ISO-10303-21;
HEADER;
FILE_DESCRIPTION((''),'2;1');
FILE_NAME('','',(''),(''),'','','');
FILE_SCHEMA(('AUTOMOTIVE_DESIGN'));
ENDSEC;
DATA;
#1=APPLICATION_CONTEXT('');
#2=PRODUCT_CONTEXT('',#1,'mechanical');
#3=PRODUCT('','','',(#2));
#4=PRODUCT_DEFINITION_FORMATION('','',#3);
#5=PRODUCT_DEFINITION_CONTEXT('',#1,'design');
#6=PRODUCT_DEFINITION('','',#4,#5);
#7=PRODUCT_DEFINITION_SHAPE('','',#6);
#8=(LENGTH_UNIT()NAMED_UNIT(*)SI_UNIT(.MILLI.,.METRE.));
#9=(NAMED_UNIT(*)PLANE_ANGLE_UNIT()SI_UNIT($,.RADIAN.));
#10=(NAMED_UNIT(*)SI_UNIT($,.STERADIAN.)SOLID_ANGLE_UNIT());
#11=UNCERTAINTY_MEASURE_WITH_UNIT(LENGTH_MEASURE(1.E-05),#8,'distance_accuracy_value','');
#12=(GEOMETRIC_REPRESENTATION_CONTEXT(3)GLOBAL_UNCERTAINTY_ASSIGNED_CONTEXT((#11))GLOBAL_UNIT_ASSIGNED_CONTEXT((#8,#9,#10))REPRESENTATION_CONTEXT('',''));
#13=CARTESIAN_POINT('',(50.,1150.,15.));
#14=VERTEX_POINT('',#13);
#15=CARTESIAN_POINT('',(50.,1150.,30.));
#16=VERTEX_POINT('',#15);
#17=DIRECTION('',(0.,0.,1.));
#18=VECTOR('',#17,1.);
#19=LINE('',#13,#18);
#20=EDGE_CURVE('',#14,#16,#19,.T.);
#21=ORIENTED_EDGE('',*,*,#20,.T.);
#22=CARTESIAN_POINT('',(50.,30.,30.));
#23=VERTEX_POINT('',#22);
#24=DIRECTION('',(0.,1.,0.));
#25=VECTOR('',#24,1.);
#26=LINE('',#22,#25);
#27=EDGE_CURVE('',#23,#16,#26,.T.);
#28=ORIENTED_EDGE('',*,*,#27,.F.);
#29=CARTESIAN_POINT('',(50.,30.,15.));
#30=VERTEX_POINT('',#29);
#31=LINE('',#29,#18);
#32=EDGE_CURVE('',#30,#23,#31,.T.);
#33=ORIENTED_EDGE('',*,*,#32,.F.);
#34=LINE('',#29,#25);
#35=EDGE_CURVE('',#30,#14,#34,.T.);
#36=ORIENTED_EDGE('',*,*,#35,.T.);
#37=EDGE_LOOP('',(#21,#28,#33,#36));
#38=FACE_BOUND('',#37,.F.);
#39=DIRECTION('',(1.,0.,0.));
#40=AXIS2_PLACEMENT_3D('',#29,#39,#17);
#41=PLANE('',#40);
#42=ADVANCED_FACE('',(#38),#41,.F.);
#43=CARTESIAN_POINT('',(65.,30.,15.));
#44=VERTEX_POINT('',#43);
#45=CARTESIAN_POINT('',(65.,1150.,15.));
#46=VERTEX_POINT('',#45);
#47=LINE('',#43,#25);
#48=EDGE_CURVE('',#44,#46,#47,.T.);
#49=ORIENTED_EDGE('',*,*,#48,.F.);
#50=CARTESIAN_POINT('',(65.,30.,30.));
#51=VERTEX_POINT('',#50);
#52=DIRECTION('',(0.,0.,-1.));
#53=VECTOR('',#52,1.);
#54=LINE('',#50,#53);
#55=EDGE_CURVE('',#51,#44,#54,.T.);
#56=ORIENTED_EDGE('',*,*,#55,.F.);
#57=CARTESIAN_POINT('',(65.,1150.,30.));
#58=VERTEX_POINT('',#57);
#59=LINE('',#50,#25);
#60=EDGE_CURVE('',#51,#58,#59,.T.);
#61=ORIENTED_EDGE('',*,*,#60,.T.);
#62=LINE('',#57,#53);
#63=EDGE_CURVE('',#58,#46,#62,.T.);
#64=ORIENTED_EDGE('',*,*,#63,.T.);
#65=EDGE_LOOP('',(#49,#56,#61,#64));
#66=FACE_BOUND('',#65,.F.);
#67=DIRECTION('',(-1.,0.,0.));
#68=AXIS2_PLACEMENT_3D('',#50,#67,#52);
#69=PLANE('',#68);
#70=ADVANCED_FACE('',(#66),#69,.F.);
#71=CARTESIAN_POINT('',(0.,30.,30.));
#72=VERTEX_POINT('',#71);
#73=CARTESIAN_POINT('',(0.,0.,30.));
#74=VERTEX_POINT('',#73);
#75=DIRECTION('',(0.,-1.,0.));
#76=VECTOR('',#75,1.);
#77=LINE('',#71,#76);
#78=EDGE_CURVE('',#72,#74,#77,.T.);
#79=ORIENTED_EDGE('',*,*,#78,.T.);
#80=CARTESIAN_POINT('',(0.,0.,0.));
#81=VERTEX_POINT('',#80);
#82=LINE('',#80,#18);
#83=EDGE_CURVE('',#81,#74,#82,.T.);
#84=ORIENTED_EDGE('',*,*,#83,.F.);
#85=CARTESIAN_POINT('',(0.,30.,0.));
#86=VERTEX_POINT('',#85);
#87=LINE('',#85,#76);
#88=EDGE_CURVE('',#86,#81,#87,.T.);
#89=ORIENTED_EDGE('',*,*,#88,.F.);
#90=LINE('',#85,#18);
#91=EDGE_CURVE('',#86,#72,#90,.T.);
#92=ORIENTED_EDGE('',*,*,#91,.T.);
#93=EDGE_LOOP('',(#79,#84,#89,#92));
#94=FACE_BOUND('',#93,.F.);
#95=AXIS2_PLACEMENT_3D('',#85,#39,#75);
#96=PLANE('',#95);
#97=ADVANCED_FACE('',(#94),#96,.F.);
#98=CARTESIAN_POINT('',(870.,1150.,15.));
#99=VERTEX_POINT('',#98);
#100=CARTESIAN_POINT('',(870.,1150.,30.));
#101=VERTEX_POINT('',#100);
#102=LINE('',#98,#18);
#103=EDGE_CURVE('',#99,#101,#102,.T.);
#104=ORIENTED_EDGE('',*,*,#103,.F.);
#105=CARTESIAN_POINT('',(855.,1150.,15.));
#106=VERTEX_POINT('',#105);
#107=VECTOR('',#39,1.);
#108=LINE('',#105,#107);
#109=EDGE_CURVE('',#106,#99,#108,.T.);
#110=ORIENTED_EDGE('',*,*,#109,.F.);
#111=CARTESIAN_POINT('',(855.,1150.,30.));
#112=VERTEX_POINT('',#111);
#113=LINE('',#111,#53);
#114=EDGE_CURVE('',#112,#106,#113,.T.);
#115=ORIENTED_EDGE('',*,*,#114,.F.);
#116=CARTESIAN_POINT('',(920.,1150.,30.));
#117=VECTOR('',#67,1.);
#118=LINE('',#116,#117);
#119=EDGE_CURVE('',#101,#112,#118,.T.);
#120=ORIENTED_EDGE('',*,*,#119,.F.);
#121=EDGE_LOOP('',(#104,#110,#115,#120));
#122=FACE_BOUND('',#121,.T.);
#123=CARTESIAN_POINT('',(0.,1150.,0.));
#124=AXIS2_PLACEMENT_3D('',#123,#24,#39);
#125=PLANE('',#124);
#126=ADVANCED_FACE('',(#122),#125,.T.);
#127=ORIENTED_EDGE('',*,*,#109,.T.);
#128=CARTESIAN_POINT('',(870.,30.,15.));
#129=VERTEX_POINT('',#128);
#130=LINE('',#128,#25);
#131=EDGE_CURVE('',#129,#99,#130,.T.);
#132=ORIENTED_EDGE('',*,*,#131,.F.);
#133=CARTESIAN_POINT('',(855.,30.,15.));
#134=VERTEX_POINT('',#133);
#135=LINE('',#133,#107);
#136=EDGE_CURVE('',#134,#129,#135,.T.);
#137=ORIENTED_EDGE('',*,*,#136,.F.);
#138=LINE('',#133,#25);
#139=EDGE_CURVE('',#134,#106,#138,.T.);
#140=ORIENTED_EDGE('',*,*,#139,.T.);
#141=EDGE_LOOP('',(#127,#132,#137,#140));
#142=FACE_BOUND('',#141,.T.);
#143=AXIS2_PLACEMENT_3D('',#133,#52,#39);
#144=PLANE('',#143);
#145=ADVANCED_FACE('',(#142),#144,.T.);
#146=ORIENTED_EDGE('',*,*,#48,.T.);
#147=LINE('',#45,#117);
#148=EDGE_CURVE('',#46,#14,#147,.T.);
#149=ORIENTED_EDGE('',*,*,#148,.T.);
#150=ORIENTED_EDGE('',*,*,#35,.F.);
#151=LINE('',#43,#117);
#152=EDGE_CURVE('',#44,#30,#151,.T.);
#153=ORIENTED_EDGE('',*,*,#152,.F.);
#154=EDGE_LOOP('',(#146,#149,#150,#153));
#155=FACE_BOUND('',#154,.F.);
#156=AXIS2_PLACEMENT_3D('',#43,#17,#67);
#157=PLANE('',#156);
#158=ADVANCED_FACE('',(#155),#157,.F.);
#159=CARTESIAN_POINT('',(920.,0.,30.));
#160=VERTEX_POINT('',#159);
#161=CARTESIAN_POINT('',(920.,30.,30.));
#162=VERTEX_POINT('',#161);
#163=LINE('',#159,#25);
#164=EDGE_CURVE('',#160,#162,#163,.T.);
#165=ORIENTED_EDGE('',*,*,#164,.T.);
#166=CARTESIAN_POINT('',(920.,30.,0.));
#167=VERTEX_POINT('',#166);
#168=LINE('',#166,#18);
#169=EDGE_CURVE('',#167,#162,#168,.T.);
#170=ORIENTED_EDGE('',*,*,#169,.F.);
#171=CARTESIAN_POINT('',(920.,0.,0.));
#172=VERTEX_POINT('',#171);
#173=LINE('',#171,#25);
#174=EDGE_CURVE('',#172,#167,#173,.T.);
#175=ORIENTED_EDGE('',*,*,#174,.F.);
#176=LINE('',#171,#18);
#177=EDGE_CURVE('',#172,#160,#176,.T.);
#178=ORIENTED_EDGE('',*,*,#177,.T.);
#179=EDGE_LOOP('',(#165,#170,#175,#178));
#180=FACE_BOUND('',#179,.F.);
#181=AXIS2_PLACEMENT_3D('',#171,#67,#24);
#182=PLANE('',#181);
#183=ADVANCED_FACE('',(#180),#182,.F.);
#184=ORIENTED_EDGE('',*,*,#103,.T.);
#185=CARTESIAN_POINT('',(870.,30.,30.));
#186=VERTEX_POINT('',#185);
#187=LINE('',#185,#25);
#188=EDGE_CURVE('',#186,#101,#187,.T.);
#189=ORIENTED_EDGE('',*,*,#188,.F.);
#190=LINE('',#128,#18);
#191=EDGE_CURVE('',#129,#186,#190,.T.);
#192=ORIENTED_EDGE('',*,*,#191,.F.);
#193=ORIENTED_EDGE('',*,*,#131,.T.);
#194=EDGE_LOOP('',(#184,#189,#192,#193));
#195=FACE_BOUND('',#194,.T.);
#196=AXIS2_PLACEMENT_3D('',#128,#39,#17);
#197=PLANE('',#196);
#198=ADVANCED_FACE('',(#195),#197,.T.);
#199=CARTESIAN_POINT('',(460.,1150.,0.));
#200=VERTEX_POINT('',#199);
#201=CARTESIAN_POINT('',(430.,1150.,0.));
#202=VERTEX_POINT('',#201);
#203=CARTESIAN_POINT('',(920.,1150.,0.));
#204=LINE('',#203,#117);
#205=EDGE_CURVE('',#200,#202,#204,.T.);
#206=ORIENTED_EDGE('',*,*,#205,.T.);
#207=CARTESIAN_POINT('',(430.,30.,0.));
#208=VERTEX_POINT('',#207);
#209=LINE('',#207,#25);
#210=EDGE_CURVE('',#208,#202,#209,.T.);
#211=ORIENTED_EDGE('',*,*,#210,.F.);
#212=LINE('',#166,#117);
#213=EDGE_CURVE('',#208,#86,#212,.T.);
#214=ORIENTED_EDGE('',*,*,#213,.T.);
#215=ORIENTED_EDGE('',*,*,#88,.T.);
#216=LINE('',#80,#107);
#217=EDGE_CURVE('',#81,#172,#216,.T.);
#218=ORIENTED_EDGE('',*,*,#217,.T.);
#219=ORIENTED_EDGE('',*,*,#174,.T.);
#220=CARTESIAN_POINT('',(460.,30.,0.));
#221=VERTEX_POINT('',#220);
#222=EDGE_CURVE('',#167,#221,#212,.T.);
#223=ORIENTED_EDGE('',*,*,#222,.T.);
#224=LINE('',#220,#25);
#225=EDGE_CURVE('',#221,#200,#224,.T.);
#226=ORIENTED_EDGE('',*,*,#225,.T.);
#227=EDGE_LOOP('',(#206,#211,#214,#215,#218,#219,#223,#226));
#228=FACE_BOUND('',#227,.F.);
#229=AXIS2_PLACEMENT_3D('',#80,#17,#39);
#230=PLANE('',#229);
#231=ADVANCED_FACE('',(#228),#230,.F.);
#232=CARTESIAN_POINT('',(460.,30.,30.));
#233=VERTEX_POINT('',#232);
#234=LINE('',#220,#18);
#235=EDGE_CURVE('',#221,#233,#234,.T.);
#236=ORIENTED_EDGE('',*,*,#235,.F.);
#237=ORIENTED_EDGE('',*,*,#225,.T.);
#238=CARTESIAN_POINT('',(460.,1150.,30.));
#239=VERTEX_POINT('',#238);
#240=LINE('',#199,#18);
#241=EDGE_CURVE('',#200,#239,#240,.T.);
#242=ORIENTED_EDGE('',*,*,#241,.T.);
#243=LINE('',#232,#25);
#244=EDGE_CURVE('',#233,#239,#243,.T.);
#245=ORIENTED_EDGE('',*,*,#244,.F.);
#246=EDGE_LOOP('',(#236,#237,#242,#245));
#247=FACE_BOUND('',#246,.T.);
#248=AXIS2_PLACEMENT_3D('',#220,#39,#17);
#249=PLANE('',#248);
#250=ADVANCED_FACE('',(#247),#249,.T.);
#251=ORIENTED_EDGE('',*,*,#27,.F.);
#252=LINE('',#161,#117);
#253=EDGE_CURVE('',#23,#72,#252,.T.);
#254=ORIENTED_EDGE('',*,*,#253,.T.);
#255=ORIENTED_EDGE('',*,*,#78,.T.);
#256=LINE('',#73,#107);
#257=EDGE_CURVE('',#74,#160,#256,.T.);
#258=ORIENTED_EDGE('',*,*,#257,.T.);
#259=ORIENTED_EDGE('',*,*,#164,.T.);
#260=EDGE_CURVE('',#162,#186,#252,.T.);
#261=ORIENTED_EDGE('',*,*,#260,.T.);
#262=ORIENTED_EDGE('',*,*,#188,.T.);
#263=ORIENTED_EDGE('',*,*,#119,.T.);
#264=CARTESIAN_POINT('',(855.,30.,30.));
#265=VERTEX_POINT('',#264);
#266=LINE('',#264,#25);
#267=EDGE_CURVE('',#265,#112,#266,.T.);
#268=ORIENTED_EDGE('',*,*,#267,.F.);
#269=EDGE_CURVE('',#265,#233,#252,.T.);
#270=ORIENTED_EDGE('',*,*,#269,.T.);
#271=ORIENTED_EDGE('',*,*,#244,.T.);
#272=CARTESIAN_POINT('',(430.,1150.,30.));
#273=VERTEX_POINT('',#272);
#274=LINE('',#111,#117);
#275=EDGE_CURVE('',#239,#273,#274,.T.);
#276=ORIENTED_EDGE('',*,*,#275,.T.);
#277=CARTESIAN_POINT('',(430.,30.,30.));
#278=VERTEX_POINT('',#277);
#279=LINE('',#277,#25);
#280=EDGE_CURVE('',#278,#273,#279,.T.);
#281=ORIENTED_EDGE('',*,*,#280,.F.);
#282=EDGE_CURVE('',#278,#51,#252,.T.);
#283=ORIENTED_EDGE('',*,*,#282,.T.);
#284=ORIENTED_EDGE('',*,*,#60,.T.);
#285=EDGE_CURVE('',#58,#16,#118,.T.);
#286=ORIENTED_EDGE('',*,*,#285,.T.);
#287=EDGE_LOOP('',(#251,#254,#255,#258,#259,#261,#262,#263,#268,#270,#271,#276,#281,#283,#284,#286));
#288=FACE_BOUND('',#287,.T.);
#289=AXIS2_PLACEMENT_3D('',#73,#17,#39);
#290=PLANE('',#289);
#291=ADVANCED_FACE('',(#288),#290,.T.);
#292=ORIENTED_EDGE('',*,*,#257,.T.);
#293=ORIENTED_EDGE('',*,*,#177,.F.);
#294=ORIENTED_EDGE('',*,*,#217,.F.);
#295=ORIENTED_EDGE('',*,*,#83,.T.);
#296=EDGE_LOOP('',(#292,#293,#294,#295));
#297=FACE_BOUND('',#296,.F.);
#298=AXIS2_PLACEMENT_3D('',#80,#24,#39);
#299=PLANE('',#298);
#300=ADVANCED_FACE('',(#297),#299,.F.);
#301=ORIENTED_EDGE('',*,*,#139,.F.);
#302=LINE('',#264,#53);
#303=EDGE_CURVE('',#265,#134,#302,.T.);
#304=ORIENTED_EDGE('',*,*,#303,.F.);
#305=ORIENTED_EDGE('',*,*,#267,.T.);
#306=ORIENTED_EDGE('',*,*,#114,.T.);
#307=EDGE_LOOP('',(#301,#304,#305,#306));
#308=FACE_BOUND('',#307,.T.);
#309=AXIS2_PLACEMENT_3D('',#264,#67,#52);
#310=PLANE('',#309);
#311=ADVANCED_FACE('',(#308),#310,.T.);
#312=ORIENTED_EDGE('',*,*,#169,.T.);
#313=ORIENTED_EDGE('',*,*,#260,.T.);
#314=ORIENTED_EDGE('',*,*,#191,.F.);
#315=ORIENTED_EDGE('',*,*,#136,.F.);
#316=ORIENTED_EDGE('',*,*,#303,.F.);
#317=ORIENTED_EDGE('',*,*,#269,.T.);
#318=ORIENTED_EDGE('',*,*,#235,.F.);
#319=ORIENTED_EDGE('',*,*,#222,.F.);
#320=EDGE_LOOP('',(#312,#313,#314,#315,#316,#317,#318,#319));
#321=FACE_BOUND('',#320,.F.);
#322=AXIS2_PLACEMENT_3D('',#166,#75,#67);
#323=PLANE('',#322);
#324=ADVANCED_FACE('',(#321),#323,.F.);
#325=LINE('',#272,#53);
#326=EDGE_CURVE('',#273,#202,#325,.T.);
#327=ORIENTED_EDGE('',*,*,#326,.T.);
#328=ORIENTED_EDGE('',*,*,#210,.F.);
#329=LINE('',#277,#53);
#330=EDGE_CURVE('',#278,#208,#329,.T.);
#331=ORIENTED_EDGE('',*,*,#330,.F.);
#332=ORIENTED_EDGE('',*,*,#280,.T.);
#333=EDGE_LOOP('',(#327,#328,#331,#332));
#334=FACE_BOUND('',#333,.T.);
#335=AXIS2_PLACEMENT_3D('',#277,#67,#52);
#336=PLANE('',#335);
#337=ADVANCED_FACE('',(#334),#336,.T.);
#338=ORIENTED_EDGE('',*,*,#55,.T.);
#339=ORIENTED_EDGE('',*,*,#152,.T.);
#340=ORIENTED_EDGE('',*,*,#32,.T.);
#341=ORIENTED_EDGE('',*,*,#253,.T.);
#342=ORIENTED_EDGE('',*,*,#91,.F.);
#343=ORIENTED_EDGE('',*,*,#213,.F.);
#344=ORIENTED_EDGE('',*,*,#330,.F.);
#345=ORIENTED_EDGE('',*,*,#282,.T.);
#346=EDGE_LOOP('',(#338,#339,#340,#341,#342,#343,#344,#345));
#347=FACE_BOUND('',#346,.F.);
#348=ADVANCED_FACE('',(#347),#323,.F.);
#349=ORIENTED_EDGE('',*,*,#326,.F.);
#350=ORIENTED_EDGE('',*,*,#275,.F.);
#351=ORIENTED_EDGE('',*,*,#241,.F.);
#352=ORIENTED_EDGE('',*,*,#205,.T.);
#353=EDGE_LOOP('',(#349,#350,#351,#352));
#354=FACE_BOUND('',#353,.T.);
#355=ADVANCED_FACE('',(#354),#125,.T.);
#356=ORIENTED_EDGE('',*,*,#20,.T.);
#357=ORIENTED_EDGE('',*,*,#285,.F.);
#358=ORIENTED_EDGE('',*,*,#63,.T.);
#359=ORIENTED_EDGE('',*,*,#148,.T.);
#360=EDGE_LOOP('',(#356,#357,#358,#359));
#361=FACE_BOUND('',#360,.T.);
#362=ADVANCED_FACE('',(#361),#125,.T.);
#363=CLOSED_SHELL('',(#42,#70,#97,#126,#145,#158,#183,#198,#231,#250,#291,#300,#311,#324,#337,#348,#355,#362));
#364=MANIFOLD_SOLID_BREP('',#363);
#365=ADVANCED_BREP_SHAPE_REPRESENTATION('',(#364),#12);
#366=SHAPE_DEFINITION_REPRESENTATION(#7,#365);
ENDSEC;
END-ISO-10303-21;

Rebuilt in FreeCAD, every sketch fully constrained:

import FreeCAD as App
import Part
import Sketcher
from FreeCAD import Vector
Q = App.Units.Quantity


def add_polygon(sketch, points):
    """Adds a closed chain of lines whose ends are joined by coincident constraints."""
    first, n = sketch.GeometryCount, len(points)
    for a, b in zip(points, points[1:] + points[:1]):
        sketch.addGeometry(Part.LineSegment(App.Vector(*a, 0), App.Vector(*b, 0)), False)
    for i in range(n):
        sketch.addConstraint(Sketcher.Constraint("Coincident", first + i, 2, first + (i + 1) % n, 1))

doc = App.newDocument("Part")
body = doc.addObject("PartDesign::Body", "Body")

# Sketch on XY plane
sketch1 = body.newObject("Sketcher::SketchObject", "Sketch")
sketch1.AttachmentSupport = (doc.getObject("XY_Plane"), [""])
sketch1.MapMode = "FlatFace"
add_polygon(sketch1, [(0, 30), (0, 0), (920, 0), (920, 30)])  # lines 0-3
sketch1.addConstraint([
    Sketcher.Constraint("Vertical", 0),
    Sketcher.Constraint("Horizontal", 1),
    Sketcher.Constraint("Vertical", 2),
    Sketcher.Constraint("Horizontal", 3),
    Sketcher.Constraint("Coincident", 0, 2, -1, 1),
    Sketcher.Constraint("DistanceX", 1, 1, 1, 2, Q("920 mm")),
    Sketcher.Constraint("DistanceY", 0, 2, 0, 1, Q("30 mm")),
])
pad1 = body.newObject("PartDesign::Pad", "Pad")
pad1.Profile = sketch1
pad1.Length = 30

# Sketch on XZ plane
sketch2 = body.newObject("Sketcher::SketchObject", "Sketch001")
sketch2.AttachmentSupport = (doc.getObject("XZ_Plane"), [""])
sketch2.MapMode = "FlatFace"
sketch2.AttachmentOffset = App.Placement(Vector(0, 0, -30), App.Rotation())
add_polygon(sketch2, [(50, 30), (65, 30), (65, 15), (50, 15)])  # lines 0-3
add_polygon(sketch2, [(855, 30), (870, 30), (870, 15), (855, 15)])  # lines 4-7
sketch2.addConstraint([
    Sketcher.Constraint("Horizontal", 0),
    Sketcher.Constraint("Vertical", 1),
    Sketcher.Constraint("Horizontal", 2),
    Sketcher.Constraint("Vertical", 3),
    Sketcher.Constraint("Horizontal", 4),
    Sketcher.Constraint("Vertical", 5),
    Sketcher.Constraint("Horizontal", 6),
    Sketcher.Constraint("Vertical", 7),
    Sketcher.Constraint("Horizontal", 3, 2, 4, 2),
    Sketcher.Constraint("Horizontal", 2, 2, 5, 2),
    Sketcher.Constraint("Equal", 2, 4),
    Sketcher.Constraint("Equal", 6, 1),
    Sketcher.Constraint("DistanceX", 0, 1, 0, 2, Q("15 mm")),
    Sketcher.Constraint("DistanceY", -1, 1, 1, 2, Q("15 mm")),
    Sketcher.Constraint("DistanceX", -1, 1, 2, 2, Q("50 mm")),
    Sketcher.Constraint("DistanceX", -1, 1, 4, 2, Q("870 mm")),
])
pad2 = body.newObject("PartDesign::Pad", "Pad001")
pad2.Profile = sketch2
pad2.Length = 1120
pad2.Reversed = True

# Sketch on XZ plane
sketch3 = body.newObject("Sketcher::SketchObject", "Sketch002")
sketch3.AttachmentSupport = (doc.getObject("XZ_Plane"), [""])
sketch3.MapMode = "FlatFace"
sketch3.AttachmentOffset = App.Placement(Vector(0, 0, -30), App.Rotation())
add_polygon(sketch3, [(460, 30), (460, 0), (430, 0), (430, 30)])  # lines 0-3
sketch3.addConstraint([
    Sketcher.Constraint("Vertical", 0),
    Sketcher.Constraint("Horizontal", 1),
    Sketcher.Constraint("Vertical", 2),
    Sketcher.Constraint("Horizontal", 3),
    Sketcher.Constraint("PointOnObject", 0, 2, -1),
    Sketcher.Constraint("Equal", 3, 0),
    Sketcher.Constraint("DistanceX", 1, 2, 1, 1, Q("30 mm")),
    Sketcher.Constraint("DistanceX", -1, 1, 0, 2, Q("460 mm")),
])
pad3 = body.newObject("PartDesign::Pad", "Pad002")
pad3.Profile = sketch3
pad3.Length = 1120
pad3.Reversed = True

doc.recompute()
